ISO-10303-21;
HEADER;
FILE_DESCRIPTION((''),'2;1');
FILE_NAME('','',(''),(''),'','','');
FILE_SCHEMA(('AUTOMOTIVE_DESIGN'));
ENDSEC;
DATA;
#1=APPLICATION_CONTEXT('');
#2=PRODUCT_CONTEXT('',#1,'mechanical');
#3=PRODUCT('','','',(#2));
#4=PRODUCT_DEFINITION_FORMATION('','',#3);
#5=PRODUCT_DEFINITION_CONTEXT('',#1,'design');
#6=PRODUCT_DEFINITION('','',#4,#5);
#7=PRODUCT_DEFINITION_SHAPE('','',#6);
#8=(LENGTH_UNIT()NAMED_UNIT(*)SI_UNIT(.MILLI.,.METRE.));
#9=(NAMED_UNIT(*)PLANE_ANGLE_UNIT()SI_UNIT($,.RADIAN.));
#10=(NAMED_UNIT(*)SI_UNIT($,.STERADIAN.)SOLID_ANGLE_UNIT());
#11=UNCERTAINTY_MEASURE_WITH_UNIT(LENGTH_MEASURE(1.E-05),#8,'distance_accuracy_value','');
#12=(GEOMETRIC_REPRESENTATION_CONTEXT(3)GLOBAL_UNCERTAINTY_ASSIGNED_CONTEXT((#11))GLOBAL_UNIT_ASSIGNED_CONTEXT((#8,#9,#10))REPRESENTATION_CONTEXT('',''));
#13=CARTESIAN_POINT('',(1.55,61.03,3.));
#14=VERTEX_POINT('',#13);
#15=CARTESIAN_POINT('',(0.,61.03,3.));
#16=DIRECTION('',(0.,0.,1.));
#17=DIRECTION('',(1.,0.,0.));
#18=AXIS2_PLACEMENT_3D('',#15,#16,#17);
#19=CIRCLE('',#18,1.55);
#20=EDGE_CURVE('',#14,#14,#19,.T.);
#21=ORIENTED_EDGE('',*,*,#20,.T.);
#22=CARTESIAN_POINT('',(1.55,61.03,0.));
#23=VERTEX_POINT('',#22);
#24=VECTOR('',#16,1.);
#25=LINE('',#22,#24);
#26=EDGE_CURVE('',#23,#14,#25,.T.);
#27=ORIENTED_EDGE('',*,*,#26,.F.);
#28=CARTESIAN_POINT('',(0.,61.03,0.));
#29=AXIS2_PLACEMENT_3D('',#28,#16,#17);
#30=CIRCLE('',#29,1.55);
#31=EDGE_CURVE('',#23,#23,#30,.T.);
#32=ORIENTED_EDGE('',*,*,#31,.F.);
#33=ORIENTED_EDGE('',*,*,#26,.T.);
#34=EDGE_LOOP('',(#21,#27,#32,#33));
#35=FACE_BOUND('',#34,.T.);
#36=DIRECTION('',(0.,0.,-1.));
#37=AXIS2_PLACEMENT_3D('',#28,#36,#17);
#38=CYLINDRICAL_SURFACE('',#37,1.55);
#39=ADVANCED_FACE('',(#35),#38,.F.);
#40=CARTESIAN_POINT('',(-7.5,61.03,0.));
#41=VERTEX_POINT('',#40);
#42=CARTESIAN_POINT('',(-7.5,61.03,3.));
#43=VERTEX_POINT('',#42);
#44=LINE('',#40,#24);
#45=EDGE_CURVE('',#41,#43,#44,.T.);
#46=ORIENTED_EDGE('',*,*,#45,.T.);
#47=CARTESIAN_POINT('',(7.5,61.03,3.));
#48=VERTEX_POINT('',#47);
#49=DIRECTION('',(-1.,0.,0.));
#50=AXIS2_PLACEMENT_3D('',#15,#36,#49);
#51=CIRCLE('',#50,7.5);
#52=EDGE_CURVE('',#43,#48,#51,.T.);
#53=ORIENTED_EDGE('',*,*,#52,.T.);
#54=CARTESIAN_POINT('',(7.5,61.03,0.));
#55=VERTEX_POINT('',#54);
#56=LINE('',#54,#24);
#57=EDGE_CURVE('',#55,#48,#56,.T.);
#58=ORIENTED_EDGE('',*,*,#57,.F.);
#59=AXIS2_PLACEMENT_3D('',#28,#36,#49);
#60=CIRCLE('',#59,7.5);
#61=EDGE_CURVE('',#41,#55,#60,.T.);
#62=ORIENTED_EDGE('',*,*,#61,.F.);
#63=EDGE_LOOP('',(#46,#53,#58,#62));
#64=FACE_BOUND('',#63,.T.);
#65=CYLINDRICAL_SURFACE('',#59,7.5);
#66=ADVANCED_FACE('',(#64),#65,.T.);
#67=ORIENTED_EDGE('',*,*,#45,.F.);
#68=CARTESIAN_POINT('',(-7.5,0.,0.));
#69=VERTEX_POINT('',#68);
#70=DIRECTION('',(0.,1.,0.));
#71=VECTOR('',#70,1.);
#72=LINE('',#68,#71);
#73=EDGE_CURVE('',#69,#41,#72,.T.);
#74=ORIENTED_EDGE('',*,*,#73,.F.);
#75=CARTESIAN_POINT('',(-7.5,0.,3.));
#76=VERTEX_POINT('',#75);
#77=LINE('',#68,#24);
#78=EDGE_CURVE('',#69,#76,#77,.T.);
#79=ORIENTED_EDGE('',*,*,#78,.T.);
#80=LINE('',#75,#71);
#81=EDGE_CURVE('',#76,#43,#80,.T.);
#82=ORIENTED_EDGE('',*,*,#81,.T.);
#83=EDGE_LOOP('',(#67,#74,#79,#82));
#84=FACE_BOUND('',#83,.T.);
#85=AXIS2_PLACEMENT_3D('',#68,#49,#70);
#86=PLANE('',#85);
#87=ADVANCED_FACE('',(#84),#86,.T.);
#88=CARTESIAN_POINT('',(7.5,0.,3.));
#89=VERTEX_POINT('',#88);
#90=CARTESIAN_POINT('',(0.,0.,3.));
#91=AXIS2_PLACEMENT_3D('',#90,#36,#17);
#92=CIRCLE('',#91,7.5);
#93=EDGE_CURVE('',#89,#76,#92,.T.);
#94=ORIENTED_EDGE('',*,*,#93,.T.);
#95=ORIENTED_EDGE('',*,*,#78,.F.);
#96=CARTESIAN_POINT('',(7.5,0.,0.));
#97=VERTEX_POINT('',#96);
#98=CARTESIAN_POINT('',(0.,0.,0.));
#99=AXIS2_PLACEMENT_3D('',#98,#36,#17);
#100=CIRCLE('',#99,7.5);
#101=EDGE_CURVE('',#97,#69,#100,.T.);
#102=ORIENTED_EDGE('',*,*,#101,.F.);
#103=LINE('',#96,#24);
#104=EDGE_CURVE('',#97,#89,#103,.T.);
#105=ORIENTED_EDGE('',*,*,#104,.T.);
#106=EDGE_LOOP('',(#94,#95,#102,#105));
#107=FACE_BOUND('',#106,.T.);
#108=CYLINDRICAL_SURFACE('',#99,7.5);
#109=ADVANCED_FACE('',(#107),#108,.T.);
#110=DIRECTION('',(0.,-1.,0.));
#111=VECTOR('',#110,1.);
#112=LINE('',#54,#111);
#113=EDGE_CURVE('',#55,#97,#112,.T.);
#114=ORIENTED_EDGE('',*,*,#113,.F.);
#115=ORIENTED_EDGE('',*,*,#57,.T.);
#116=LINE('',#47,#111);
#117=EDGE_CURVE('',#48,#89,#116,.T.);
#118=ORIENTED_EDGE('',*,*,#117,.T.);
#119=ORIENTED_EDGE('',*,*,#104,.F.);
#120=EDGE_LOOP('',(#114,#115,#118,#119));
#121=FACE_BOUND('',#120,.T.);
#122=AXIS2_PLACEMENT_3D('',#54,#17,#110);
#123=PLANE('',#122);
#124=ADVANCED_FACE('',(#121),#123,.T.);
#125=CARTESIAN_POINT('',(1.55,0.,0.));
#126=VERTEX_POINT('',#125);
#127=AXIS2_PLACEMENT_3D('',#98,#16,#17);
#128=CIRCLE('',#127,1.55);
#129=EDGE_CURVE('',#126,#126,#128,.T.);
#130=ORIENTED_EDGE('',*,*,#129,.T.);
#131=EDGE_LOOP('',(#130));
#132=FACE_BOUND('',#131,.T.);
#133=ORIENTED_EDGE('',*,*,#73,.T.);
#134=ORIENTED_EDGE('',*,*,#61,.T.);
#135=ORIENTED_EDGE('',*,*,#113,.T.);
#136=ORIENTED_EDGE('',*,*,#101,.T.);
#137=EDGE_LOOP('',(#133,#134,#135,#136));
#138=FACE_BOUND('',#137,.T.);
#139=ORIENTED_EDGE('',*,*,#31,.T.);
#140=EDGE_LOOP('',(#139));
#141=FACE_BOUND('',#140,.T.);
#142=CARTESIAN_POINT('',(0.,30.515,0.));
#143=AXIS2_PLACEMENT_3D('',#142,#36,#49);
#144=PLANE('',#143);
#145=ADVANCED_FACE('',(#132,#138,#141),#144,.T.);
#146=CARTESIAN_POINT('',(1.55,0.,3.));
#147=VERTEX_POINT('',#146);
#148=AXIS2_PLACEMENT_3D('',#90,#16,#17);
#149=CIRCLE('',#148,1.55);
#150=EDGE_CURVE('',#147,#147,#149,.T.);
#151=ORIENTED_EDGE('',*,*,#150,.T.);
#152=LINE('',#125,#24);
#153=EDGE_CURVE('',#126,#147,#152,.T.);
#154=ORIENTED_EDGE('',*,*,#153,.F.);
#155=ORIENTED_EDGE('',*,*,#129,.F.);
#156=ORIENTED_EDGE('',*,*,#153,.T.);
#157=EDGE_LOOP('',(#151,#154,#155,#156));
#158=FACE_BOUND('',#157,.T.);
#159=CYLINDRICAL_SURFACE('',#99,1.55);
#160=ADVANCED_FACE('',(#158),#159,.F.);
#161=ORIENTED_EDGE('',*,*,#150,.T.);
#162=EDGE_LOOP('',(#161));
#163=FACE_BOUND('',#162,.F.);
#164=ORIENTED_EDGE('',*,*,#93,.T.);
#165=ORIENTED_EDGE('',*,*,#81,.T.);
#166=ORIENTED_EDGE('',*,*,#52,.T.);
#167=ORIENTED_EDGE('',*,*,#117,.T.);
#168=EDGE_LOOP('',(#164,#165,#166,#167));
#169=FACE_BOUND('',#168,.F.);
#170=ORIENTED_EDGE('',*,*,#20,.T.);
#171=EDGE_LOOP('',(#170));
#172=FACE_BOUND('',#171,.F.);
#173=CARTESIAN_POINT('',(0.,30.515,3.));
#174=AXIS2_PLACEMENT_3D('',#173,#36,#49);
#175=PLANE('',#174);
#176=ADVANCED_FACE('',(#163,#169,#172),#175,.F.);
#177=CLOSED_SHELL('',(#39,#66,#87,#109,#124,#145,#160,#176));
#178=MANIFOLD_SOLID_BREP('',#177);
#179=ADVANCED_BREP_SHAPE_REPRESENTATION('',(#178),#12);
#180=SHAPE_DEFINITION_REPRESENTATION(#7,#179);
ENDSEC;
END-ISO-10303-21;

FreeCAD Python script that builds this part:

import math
import FreeCAD as App
import Part
import Sketcher
from FreeCAD import Vector
Q = App.Units.Quantity

doc = App.newDocument("Part")
body = doc.addObject("PartDesign::Body", "Body")

sketch1 = body.newObject("Sketcher::SketchObject", "Sketch")
sketch1.AttachmentSupport = (doc.getObject("XY_Plane"), [""])
sketch1.MapMode = "FlatFace"
sketch1.addGeometry([
    Part.LineSegment(Vector(-7.5, 61, 0), Vector(-7.5, 0, 0)),
    Part.ArcOfCircle(Part.Circle(Vector(0, 0, 0), Vector(0, 0, 1), 7.5), math.radians(180), math.radians(360)),
    Part.LineSegment(Vector(7.5, 0, 0), Vector(7.5, 61, 0)),
    Part.ArcOfCircle(Part.Circle(Vector(0, 61, 0), Vector(0, 0, 1), 7.5), math.radians(0), math.radians(180)),
    Part.Circle(Vector(0, 0, 0), Vector(0, 0, 1), 1.6),
    Part.Circle(Vector(0, 61, 0), Vector(0, 0, 1), 1.6),
], False)
sketch1.addConstraint([
    Sketcher.Constraint("Tangent", 0, 2, 1, 1),
    Sketcher.Constraint("Tangent", 1, 2, 2, 1),
    Sketcher.Constraint("Tangent", 2, 2, 3, 1),
    Sketcher.Constraint("Tangent", 3, 2, 0, 1),
    Sketcher.Constraint("Vertical", 0),
    Sketcher.Constraint("Vertical", 2),
    Sketcher.Constraint("Coincident", 1, 3, -1, 1),
    Sketcher.Constraint("Coincident", 4, 3, -1, 1),
    Sketcher.Constraint("Coincident", 5, 3, 3, 3),
    Sketcher.Constraint("Equal", 4, 5),
    Sketcher.Constraint("Diameter", 4, Q("3.1 mm")),
    Sketcher.Constraint("Radius", 1, Q("7.5 mm")),
    Sketcher.Constraint("DistanceY", 0, 2, 0, 1, Q("61.03 mm")),
])
pad1 = body.newObject("PartDesign::Pad", "Pad")
pad1.Profile = sketch1
pad1.Length = 3

doc.recompute()
